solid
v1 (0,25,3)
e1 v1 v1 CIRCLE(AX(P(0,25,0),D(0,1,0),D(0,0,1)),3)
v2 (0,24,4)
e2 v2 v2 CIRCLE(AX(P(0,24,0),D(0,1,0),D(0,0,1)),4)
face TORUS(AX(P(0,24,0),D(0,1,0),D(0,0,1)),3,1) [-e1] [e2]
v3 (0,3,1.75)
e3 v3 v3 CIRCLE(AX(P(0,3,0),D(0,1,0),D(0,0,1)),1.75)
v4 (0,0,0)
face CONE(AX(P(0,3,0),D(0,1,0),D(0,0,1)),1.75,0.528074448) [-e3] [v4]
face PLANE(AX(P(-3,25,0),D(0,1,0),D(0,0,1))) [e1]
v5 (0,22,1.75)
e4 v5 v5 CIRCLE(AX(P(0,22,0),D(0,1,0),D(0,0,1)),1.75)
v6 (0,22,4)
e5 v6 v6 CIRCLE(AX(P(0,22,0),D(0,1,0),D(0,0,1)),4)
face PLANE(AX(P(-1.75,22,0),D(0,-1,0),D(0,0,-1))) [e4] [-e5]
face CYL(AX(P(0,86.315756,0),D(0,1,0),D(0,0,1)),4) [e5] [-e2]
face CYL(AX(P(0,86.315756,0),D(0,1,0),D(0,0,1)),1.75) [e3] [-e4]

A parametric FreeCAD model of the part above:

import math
import FreeCAD as App
import Part
import Sketcher

V = App.Vector

doc = App.newDocument("Part")
body = doc.addObject("PartDesign::Body", "Body")

sketch1 = doc.addObject("Sketcher::SketchObject", "Sketch")
body.addObject(sketch1)
sketch1.AttachmentSupport = (doc.XY_Plane, [""])
sketch1.MapMode = "FlatFace"
sketch1.addGeometry([
    Part.LineSegment(V(-1.8, 3, 0), V(0, 0, 0)),
    Part.LineSegment(V(0, 0, 0), V(0, 25, 0)),
    Part.LineSegment(V(0, 25, 0), V(-3, 25, 0)),
    Part.ArcOfCircle(Part.Circle(V(-3, 24, 0), V(0, 0, 1), 1), math.radians(90), math.radians(180)),
    Part.LineSegment(V(-4, 24, 0), V(-4, 22, 0)),
    Part.LineSegment(V(-4, 22, 0), V(-1.8, 22, 0)),
    Part.LineSegment(V(-1.8, 22, 0), V(-1.8, 3, 0)),
], False)
sketch1.addConstraint([
    Sketcher.Constraint("Coincident", 0, 2, 1, 1),
    Sketcher.Constraint("Coincident", 1, 2, 2, 1),
    Sketcher.Constraint("Tangent", 2, 2, 3, 1),
    Sketcher.Constraint("Tangent", 3, 2, 4, 1),
    Sketcher.Constraint("Coincident", 4, 2, 5, 1),
    Sketcher.Constraint("Coincident", 5, 2, 6, 1),
    Sketcher.Constraint("Coincident", 6, 2, 0, 1),
    Sketcher.Constraint("Vertical", 1),
    Sketcher.Constraint("Horizontal", 2),
    Sketcher.Constraint("Vertical", 4),
    Sketcher.Constraint("Horizontal", 5),
    Sketcher.Constraint("Vertical", 6),
    Sketcher.Constraint("Coincident", 0, 2, -1, 1),
    Sketcher.Constraint("Radius", 3, 1.0),
    Sketcher.Constraint("DistanceX", 2, 2, 2, 1, 3.0),
    Sketcher.Constraint("DistanceY", 1, 1, 1, 2, 25.0),
    Sketcher.Constraint("DistanceY", 4, 2, 4, 1, 2.0),
    Sketcher.Constraint("DistanceY", 6, 2, 6, 1, 19.0),
    Sketcher.Constraint("DistanceX", 5, 1, 5, 2, 2.25),
])
revolution = doc.addObject("PartDesign::Revolution", "Revolution")
body.addObject(revolution)
revolution.Profile = sketch1
revolution.ReferenceAxis = (sketch1, ["V_Axis"])
revolution.Angle = 360

doc.recompute()
